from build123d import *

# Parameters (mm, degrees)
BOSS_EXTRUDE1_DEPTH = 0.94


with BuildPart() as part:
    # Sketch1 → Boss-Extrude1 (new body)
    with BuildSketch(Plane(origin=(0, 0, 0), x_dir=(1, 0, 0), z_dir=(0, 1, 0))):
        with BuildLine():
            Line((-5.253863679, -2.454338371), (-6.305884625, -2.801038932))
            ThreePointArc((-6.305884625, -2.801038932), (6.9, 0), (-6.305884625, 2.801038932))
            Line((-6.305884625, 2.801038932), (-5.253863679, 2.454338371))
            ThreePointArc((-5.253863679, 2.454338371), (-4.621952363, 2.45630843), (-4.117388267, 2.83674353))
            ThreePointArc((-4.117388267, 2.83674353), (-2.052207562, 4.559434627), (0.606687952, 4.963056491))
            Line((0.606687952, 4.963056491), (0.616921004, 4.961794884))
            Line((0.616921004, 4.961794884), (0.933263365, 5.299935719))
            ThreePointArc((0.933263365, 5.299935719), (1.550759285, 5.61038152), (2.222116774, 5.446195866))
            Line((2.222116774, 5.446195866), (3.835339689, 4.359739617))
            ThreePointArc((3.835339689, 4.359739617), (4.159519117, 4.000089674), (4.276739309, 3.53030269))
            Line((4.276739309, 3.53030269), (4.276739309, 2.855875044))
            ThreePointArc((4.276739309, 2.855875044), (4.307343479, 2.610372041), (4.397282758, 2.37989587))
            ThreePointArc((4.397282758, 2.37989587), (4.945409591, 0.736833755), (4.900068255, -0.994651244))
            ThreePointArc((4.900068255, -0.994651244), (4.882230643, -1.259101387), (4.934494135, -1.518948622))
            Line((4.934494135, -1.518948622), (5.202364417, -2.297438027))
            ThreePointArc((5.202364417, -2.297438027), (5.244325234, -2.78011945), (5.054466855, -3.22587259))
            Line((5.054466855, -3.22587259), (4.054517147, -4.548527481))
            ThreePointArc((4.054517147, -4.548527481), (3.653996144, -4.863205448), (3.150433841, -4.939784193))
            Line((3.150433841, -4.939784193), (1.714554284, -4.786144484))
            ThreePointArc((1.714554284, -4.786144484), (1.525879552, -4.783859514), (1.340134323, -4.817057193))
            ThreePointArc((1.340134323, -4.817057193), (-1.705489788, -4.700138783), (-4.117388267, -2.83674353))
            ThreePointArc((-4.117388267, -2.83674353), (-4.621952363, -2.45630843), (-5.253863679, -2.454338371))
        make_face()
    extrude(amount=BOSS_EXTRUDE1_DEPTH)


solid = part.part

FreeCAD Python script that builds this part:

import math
import FreeCAD as App
import Part
import Sketcher
from FreeCAD import Vector
Q = App.Units.Quantity

doc = App.newDocument("Part")
body = doc.addObject("PartDesign::Body", "Body")

sketch1 = body.newObject("Sketcher::SketchObject", "Sketch")
sketch1.AttachmentSupport = (doc.getObject("XZ_Plane"), [""])
sketch1.MapMode = "FlatFace"
sketch1.addGeometry(Part.LineSegment(Vector(-5.254, 2.454, 0), Vector(-6.306, 2.801, 0)), False)
sketch1.addGeometry(Part.ArcOfCircle(Part.Circle(Vector(0, 0, 0), Vector(0, 0, 1), 6.9), math.radians(-156), math.radians(156)), False)
sketch1.addGeometry(Part.LineSegment(Vector(-6.306, -2.801, 0), Vector(-5.254, -2.454, 0)), False)
sketch1.addGeometry(Part.ArcOfCircle(Part.Circle(Vector(-4.941, -3.404, 0), Vector(0, 0, 1), 1), math.radians(35), math.radians(108)), False)
sketch1.addGeometry(Part.ArcOfCircle(Part.Circle(Vector(0, 0, 0), Vector(0, 0, 1), 5), math.radians(-145), math.radians(-83)), False)
sketch1.addGeometry(Part.LineSegment(Vector(0.607, -4.963, 0), Vector(0.617, -4.962, 0)), False)
sketch1.addGeometry(Part.LineSegment(Vector(0.617, -4.962, 0), Vector(0.933, -5.3, 0)), False)
sketch1.addGeometry(Part.ArcOfCircle(Part.Circle(Vector(1.664, -4.617, 0), Vector(0, 0, 1), 1), math.radians(-137), math.radians(-56)), False)
sketch1.addGeometry(Part.LineSegment(Vector(2.222, -5.446, 0), Vector(3.835, -4.36, 0)), False)
sketch1.addGeometry(Part.ArcOfCircle(Part.Circle(Vector(3.277, -3.53, 0), Vector(0, 0, 1), 1), math.radians(-56), math.radians(0)), False)
sketch1.addGeometry(Part.LineSegment(Vector(4.277, -3.53, 0), Vector(4.277, -2.856, 0)), False)
sketch1.addGeometry(Part.ArcOfCircle(Part.Circle(Vector(5.277, -2.856, 0), Vector(0, 0, 1), 1), math.radians(152), math.radians(180)), False)
sketch1.addGeometry(Part.ArcOfCircle(Part.Circle(Vector(0, 0, 0), Vector(0, 0, 1), 5), math.radians(-28), math.radians(11)), False)
sketch1.addGeometry(Part.ArcOfCircle(Part.Circle(Vector(5.88, 1.194, 0), Vector(0, 0, 1), 1), math.radians(161), math.radians(191)), False)
sketch1.addGeometry(Part.LineSegment(Vector(4.934, 1.519, 0), Vector(5.202, 2.297, 0)), False)
sketch1.addGeometry(Part.ArcOfCircle(Part.Circle(Vector(4.257, 2.623, 0), Vector(0, 0, 1), 1), math.radians(-19), math.radians(37)), False)
sketch1.addGeometry(Part.LineSegment(Vector(5.054, 3.226, 0), Vector(4.055, 4.549, 0)), False)
sketch1.addGeometry(Part.ArcOfCircle(Part.Circle(Vector(3.257, 3.945, 0), Vector(0, 0, 1), 1), math.radians(37), math.radians(96)), False)
sketch1.addGeometry(Part.LineSegment(Vector(3.15, 4.94, 0), Vector(1.715, 4.786, 0)), False)
sketch1.addGeometry(Part.ArcOfCircle(Part.Circle(Vector(1.608, 5.78, 0), Vector(0, 0, 1), 1), math.radians(-106), math.radians(-84)), False)
sketch1.addGeometry(Part.ArcOfCircle(Part.Circle(Vector(0, 0, 0), Vector(0, 0, 1), 5), math.radians(74), math.radians(145)), False)
sketch1.addGeometry(Part.ArcOfCircle(Part.Circle(Vector(-4.941, 3.404, 0), Vector(0, 0, 1), 1), math.radians(-108), math.radians(-35)), False)
sketch1.addConstraint(Sketcher.Constraint("Coincident", 0, 2, 1, 2))
sketch1.addConstraint(Sketcher.Constraint("Coincident", 1, 1, 2, 1))
sketch1.addConstraint(Sketcher.Constraint("Tangent", 2, 2, 3, 2))
sketch1.addConstraint(Sketcher.Constraint("Tangent", 3, 1, 4, 1))
sketch1.addConstraint(Sketcher.Constraint("Coincident", 4, 2, 5, 1))
sketch1.addConstraint(Sketcher.Constraint("Coincident", 5, 2, 6, 1))
sketch1.addConstraint(Sketcher.Constraint("Tangent", 6, 2, 7, 1))
sketch1.addConstraint(Sketcher.Constraint("Tangent", 7, 2, 8, 1))
sketch1.addConstraint(Sketcher.Constraint("Tangent", 8, 2, 9, 1))
sketch1.addConstraint(Sketcher.Constraint("Tangent", 9, 2, 10, 1))
sketch1.addConstraint(Sketcher.Constraint("Tangent", 10, 2, 11, 2))
sketch1.addConstraint(Sketcher.Constraint("Tangent", 11, 1, 12, 1))
sketch1.addConstraint(Sketcher.Constraint("Tangent", 12, 2, 13, 2))
sketch1.addConstraint(Sketcher.Constraint("Tangent", 13, 1, 14, 1))
sketch1.addConstraint(Sketcher.Constraint("Tangent", 14, 2, 15, 1))
sketch1.addConstraint(Sketcher.Constraint("Tangent", 15, 2, 16, 1))
sketch1.addConstraint(Sketcher.Constraint("Tangent", 16, 2, 17, 1))
sketch1.addConstraint(Sketcher.Constraint("Tangent", 17, 2, 18, 1))
sketch1.addConstraint(Sketcher.Constraint("Tangent", 18, 2, 19, 2))
sketch1.addConstraint(Sketcher.Constraint("Tangent", 19, 1, 20, 1))
sketch1.addConstraint(Sketcher.Constraint("Tangent", 20, 2, 21, 2))
sketch1.addConstraint(Sketcher.Constraint("Tangent", 21, 1, 0, 1))
sketch1.addConstraint(Sketcher.Constraint("Vertical", 10))
sketch1.addConstraint(Sketcher.Constraint("Coincident", 1, 3, -1, 1))
sketch1.addConstraint(Sketcher.Constraint("Coincident", 4, 3, -1, 1))
sketch1.addConstraint(Sketcher.Constraint("Coincident", 12, 3, -1, 1))
sketch1.addConstraint(Sketcher.Constraint("Coincident", 20, 3, -1, 1))
sketch1.addConstraint(Sketcher.Constraint("Equal", 3, 7))
sketch1.addConstraint(Sketcher.Constraint("Equal", 7, 9))
sketch1.addConstraint(Sketcher.Constraint("Equal", 9, 11))
sketch1.addConstraint(Sketcher.Constraint("Equal", 4, 12))
sketch1.addConstraint(Sketcher.Constraint("Equal", 11, 13))
sketch1.addConstraint(Sketcher.Constraint("Equal", 13, 15))
sketch1.addConstraint(Sketcher.Constraint("Equal", 15, 17))
sketch1.addConstraint(Sketcher.Constraint("Equal", 17, 19))
sketch1.addConstraint(Sketcher.Constraint("Equal", 12, 20))
sketch1.addConstraint(Sketcher.Constraint("Equal", 19, 21))
sketch1.addConstraint(Sketcher.Constraint("Symmetric", 2, 2, 21, 1, -1))
sketch1.addConstraint(Sketcher.Constraint("Radius", 3, Q("1 mm")))
sketch1.addConstraint(Sketcher.Constraint("Radius", 4, Q("5 mm")))
sketch1.addConstraint(Sketcher.Constraint("Radius", 1, Q("6.9 mm")))
sketch1.addConstraint(Sketcher.Constraint("Angle", 0, Q("161.760017 deg")))
sketch1.addConstraint(Sketcher.Constraint("DistanceY", 1, 1, 2, 2, Q("0.346701 mm")))
sketch1.addConstraint(Sketcher.Constraint("DistanceX", 7, 3, 7, 2, Q("0.5586 mm")))
sketch1.addConstraint(Sketcher.Constraint("DistanceY", 7, 2, 5, 2, Q("0.484401 mm")))
sketch1.addConstraint(Sketcher.Constraint("DistanceX", 19, 1, 17, 2, Q("1.8103 mm")))
sketch1.addConstraint(Sketcher.Constraint("Distance", 5, Q("0.010311 mm")))
sketch1.addConstraint(Sketcher.Constraint("Distance", 8, Q("1.944962 mm")))
sketch1.addConstraint(Sketcher.Constraint("DistanceY", 10, 1, 10, 2, Q("0.674428 mm")))
sketch1.addConstraint(Sketcher.Constraint("DistanceY", 7, 3, -1, 1, Q("4.616759 mm")))
sketch1.addConstraint(Sketcher.Constraint("DistanceX", -1, 1, 13, 3, Q("5.880082 mm")))
sketch1.addConstraint(Sketcher.Constraint("DistanceY", -1, 1, 17, 3, Q("3.94546 mm")))
sketch1.addConstraint(Sketcher.Constraint("DistanceX", -1, 1, 19, 3, Q("1.608161 mm")))
sketch1.addConstraint(Sketcher.Constraint("DistanceX", -1, 1, 5, 2, Q("0.616921 mm")))
sketch1.addConstraint(Sketcher.Constraint("DistanceY", -1, 1, 13, 1, Q("1.518949 mm")))
sketch1.addConstraint(Sketcher.Constraint("DistanceY", -1, 1, 14, 2, Q("2.297438 mm")))
pad1 = body.newObject("PartDesign::Pad", "Pad")
pad1.Profile = sketch1
pad1.Length = 0.94
pad1.Reversed = True

doc.recompute()
